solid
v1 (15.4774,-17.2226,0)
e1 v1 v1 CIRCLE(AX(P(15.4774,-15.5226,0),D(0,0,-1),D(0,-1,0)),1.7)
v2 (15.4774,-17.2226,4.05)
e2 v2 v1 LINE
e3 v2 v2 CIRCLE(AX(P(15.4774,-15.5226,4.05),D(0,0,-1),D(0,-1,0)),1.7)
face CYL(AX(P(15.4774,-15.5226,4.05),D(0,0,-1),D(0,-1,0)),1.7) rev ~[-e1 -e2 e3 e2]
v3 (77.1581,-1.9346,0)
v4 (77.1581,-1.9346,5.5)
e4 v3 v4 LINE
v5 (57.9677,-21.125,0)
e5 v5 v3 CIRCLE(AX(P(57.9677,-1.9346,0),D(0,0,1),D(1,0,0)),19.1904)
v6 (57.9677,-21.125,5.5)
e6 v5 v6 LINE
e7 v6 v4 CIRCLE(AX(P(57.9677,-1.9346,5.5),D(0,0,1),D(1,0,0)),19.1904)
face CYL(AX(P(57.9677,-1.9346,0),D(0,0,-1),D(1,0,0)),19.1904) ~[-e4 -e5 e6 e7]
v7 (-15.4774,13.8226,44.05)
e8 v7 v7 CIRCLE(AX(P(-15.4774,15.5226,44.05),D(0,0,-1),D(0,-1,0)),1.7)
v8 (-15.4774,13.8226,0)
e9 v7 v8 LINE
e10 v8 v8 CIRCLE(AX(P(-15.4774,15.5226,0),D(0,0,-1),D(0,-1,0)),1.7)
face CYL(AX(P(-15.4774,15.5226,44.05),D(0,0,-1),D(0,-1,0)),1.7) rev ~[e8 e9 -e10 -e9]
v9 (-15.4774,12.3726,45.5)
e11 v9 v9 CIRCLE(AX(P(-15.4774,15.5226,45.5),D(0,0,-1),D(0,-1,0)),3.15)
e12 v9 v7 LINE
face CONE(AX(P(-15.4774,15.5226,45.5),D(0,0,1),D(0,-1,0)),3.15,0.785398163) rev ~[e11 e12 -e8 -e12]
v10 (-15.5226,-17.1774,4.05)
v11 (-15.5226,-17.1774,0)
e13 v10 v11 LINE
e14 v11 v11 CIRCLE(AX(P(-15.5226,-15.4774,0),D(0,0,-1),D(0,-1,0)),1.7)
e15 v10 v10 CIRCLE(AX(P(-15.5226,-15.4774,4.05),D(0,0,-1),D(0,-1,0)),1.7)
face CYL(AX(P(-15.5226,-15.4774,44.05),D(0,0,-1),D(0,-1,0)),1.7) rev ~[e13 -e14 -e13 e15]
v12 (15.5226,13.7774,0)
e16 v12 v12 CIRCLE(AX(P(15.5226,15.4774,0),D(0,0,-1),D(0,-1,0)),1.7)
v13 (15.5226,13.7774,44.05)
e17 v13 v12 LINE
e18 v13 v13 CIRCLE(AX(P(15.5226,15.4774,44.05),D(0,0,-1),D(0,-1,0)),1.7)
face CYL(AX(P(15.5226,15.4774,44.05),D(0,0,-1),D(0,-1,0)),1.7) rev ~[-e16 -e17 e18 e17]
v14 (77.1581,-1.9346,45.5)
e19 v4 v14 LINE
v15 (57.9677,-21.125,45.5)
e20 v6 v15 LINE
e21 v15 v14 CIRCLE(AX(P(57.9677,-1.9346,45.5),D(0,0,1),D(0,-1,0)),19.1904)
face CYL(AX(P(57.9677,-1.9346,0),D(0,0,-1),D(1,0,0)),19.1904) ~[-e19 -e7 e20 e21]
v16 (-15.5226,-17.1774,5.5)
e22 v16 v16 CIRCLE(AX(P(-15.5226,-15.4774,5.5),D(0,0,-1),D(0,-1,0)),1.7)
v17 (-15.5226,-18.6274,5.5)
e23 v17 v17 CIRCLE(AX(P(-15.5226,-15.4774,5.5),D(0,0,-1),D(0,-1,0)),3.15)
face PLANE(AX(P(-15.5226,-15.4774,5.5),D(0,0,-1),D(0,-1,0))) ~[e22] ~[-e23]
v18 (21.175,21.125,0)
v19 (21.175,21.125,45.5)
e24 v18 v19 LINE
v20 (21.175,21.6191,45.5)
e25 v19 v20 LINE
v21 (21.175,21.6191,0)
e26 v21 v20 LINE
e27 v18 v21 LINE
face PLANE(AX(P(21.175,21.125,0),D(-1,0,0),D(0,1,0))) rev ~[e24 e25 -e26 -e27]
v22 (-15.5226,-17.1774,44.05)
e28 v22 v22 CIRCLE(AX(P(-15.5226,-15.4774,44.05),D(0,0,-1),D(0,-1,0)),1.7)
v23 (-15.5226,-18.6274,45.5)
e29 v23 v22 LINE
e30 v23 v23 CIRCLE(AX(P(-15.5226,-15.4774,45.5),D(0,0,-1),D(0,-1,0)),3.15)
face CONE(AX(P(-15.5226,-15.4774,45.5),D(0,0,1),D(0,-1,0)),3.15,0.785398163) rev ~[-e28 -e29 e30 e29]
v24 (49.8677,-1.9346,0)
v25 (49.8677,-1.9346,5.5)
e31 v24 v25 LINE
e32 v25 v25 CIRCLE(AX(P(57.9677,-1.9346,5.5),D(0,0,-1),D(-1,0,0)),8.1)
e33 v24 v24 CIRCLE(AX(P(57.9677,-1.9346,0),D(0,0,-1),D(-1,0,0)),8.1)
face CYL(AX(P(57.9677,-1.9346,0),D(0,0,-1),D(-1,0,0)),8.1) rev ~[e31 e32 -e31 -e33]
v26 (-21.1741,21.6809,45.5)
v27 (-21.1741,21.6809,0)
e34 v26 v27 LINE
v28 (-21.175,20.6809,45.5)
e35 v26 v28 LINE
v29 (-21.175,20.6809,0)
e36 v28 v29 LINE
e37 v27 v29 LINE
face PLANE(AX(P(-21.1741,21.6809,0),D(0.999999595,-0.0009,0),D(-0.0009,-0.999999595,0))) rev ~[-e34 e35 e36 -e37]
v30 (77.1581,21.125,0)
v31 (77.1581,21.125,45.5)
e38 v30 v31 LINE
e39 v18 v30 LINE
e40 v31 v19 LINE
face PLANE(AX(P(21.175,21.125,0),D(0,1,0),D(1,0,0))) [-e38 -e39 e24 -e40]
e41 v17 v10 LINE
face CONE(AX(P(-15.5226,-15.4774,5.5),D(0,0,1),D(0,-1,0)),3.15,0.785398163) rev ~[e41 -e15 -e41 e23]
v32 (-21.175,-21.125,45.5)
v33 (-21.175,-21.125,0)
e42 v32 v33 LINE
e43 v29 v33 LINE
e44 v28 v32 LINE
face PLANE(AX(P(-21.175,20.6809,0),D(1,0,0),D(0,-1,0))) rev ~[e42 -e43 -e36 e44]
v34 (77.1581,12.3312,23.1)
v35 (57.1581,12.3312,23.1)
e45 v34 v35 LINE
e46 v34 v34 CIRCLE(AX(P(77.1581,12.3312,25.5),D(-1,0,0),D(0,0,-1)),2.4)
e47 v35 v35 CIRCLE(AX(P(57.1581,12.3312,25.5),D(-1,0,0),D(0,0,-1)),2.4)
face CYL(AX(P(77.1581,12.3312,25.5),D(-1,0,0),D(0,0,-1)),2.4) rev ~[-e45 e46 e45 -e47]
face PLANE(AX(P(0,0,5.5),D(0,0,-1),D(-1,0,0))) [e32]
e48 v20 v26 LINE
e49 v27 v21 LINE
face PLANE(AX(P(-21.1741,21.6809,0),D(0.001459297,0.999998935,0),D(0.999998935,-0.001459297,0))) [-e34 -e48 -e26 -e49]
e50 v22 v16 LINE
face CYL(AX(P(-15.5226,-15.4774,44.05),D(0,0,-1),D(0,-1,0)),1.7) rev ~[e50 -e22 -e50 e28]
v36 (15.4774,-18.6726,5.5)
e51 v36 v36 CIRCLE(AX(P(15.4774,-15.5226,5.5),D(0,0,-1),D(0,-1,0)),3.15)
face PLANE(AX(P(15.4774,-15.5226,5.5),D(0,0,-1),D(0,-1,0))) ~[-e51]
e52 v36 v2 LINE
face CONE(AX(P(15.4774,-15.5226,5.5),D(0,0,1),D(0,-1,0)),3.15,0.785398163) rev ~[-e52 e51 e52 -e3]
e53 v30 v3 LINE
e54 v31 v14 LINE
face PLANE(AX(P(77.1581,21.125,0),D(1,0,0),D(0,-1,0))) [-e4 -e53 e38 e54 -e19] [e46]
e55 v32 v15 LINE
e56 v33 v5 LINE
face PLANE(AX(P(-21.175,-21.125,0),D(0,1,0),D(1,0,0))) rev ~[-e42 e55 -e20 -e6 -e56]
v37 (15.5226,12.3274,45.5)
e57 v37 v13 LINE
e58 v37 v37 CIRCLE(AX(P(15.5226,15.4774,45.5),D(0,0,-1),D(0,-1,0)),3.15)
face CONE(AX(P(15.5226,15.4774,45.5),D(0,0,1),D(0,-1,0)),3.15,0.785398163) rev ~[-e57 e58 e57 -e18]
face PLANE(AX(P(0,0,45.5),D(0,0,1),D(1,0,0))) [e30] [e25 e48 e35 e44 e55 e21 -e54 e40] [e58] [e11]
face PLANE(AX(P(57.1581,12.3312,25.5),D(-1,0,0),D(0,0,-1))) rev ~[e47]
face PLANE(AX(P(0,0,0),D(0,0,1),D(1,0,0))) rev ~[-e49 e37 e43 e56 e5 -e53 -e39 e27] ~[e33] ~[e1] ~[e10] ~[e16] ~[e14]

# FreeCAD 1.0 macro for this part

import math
import FreeCAD as App
import Part
import Sketcher
Q = App.Units.Quantity

doc = App.newDocument("Part")
body = doc.addObject("PartDesign::Body", "Body")

sketch1 = body.newObject("Sketcher::SketchObject", "Sketch")
sketch1.AttachmentSupport = (doc.getObject("XY_Plane"), [""])
sketch1.MapMode = "FlatFace"
sketch1.addGeometry([
    Part.LineSegment(App.Vector(-21.18, -21.12, 0), App.Vector(57.97, -21.12, 0)),
    Part.ArcOfCircle(Part.Circle(App.Vector(57.97, -1.93, 0), App.Vector(0, 0, 1), 19.19), math.radians(-90), math.radians(0)),
    Part.LineSegment(App.Vector(77.16, -1.93, 0), App.Vector(77.16, 21.12, 0)),
    Part.LineSegment(App.Vector(77.16, 21.12, 0), App.Vector(21.18, 21.12, 0)),
    Part.LineSegment(App.Vector(21.18, 21.12, 0), App.Vector(21.18, 21.62, 0)),
    Part.LineSegment(App.Vector(21.18, 21.62, 0), App.Vector(-21.17, 21.68, 0)),
    Part.LineSegment(App.Vector(-21.17, 21.68, 0), App.Vector(-21.18, 20.68, 0)),
    Part.LineSegment(App.Vector(-21.18, 20.68, 0), App.Vector(-21.18, -21.12, 0)),
    Part.Circle(App.Vector(-15.52, -15.48, 0), App.Vector(0, 0, 1), 1.36),
    Part.Circle(App.Vector(-15.48, 15.52, 0), App.Vector(0, 0, 1), 1.36),
    Part.Circle(App.Vector(15.52, 15.48, 0), App.Vector(0, 0, 1), 1.36),
    Part.Circle(App.Vector(57.97, -1.93, 0), App.Vector(0, 0, 1), 4.2),
], False)
sketch1.addConstraint([
    Sketcher.Constraint("Tangent", 0, 2, 1, 1),
    Sketcher.Constraint("Tangent", 1, 2, 2, 1),
    Sketcher.Constraint("Coincident", 2, 2, 3, 1),
    Sketcher.Constraint("Coincident", 3, 2, 4, 1),
    Sketcher.Constraint("Coincident", 4, 2, 5, 1),
    Sketcher.Constraint("Coincident", 5, 2, 6, 1),
    Sketcher.Constraint("Coincident", 6, 2, 7, 1),
    Sketcher.Constraint("Coincident", 7, 2, 0, 1),
    Sketcher.Constraint("Horizontal", 0),
    Sketcher.Constraint("Vertical", 2),
    Sketcher.Constraint("Horizontal", 3),
    Sketcher.Constraint("Vertical", 4),
    Sketcher.Constraint("Vertical", 7),
    Sketcher.Constraint("Coincident", 11, 3, 1, 3),
    Sketcher.Constraint("Equal", 8, 9),
    Sketcher.Constraint("Equal", 9, 10),
    Sketcher.Constraint("Symmetric", 8, 3, 10, 3, -1, 1),
    Sketcher.Constraint("Symmetric", 3, 2, 7, 2, -1, 1),
    Sketcher.Constraint("Diameter", 11, Q("8.4 mm")),
    Sketcher.Constraint("Distance", 6, Q("1 mm")),
    Sketcher.Constraint("Diameter", 8, Q("2.729 mm")),
    Sketcher.Constraint("DistanceY", 8, 3, 9, 3, Q("31 mm")),
    Sketcher.Constraint("DistanceX", 9, 3, 10, 3, Q("31 mm")),
    Sketcher.Constraint("Radius", 1, Q("19.1904 mm")),
    Sketcher.Constraint("DistanceX", 3, 2, 3, 1, Q("55.983 mm")),
    Sketcher.Constraint("DistanceY", 4, 1, 4, 2, Q("0.494 mm")),
    Sketcher.Constraint("DistanceY", 7, 2, 7, 1, Q("41.806 mm")),
    Sketcher.Constraint("DistanceY", 0, 2, 2, 2, Q("42.25 mm")),
    Sketcher.Constraint("DistanceX", 6, 2, 3, 2, Q("42.35 mm")),
    Sketcher.Constraint("DistanceX", 5, 2, -1, 1, Q("21.174 mm")),
    Sketcher.Constraint("DistanceX", 9, 3, 1, 3, Q("73.445 mm")),
    Sketcher.Constraint("DistanceY", 1, 3, 10, 3, Q("17.412 mm")),
])
pad1 = body.newObject("PartDesign::Pad", "Pad")
pad1.Profile = sketch1
pad1.Length = 5.5

sketch2 = body.newObject("Sketcher::SketchObject", "Sketch001")
sketch2.AttachmentSupport = (doc.getObject("XY_Plane"), [""])
sketch2.MapMode = "FlatFace"
sketch2.AttachmentOffset = App.Placement(App.Vector(0, 0, 5.5), App.Rotation())
sketch2.addGeometry([
    Part.ArcOfCircle(Part.Circle(App.Vector(57.97, -1.93, 0), App.Vector(0, 0, 1), 19.19), math.radians(-90), math.radians(0)),
    Part.LineSegment(App.Vector(77.16, -1.93, 0), App.Vector(77.16, 21.12, 0)),
    Part.LineSegment(App.Vector(77.16, 21.12, 0), App.Vector(21.18, 21.12, 0)),
    Part.LineSegment(App.Vector(21.18, 21.12, 0), App.Vector(21.18, 21.62, 0)),
    Part.LineSegment(App.Vector(21.18, 21.62, 0), App.Vector(-21.17, 21.68, 0)),
    Part.LineSegment(App.Vector(-21.17, 21.68, 0), App.Vector(-21.18, 20.68, 0)),
    Part.LineSegment(App.Vector(-21.18, 20.68, 0), App.Vector(-21.18, -21.12, 0)),
    Part.LineSegment(App.Vector(-21.18, -21.12, 0), App.Vector(57.97, -21.12, 0)),
    Part.Circle(App.Vector(-15.48, 15.52, 0), App.Vector(0, 0, 1), 1.36),
    Part.Circle(App.Vector(15.52, 15.48, 0), App.Vector(0, 0, 1), 1.36),
], False)
sketch2.addConstraint([
    Sketcher.Constraint("Tangent", 0, 2, 1, 1),
    Sketcher.Constraint("Coincident", 1, 2, 2, 1),
    Sketcher.Constraint("Coincident", 2, 2, 3, 1),
    Sketcher.Constraint("Coincident", 3, 2, 4, 1),
    Sketcher.Constraint("Coincident", 4, 2, 5, 1),
    Sketcher.Constraint("Coincident", 5, 2, 6, 1),
    Sketcher.Constraint("Coincident", 6, 2, 7, 1),
    Sketcher.Constraint("Tangent", 7, 2, 0, 1),
    Sketcher.Constraint("Vertical", 1),
    Sketcher.Constraint("Horizontal", 2),
    Sketcher.Constraint("Vertical", 3),
    Sketcher.Constraint("Vertical", 6),
    Sketcher.Constraint("Horizontal", 7),
    Sketcher.Constraint("Equal", 8, 9),
    Sketcher.Constraint("Symmetric", 2, 2, 6, 2, -1, 1),
    Sketcher.Constraint("Distance", 5, Q("1 mm")),
    Sketcher.Constraint("Diameter", 8, Q("2.729 mm")),
    Sketcher.Constraint("DistanceX", 8, 3, 9, 3, Q("31 mm")),
    Sketcher.Constraint("Radius", 0, Q("19.1904 mm")),
    Sketcher.Constraint("DistanceX", 2, 2, 2, 1, Q("55.983 mm")),
    Sketcher.Constraint("DistanceY", 3, 1, 3, 2, Q("0.494 mm")),
    Sketcher.Constraint("DistanceY", 6, 2, 6, 1, Q("41.806 mm")),
    Sketcher.Constraint("DistanceX", 5, 2, 2, 2, Q("42.35 mm")),
    Sketcher.Constraint("DistanceY", 6, 2, 2, 2, Q("42.25 mm")),
    Sketcher.Constraint("DistanceX", 4, 2, -1, 1, Q("21.174 mm")),
    Sketcher.Constraint("DistanceX", 8, 3, 0, 3, Q("73.445 mm")),
    Sketcher.Constraint("DistanceY", 0, 3, 9, 3, Q("17.412 mm")),
    Sketcher.Constraint("DistanceY", -1, 1, 8, 3, Q("15.5226 mm")),
])
pad2 = body.newObject("PartDesign::Pad", "Pad001")
pad2.Profile = sketch2
pad2.Length = 40

sketch3 = body.newObject("Sketcher::SketchObject", "Sketch002")
sketch3.AttachmentSupport = (doc.getObject("XY_Plane"), [""])
sketch3.MapMode = "FlatFace"
sketch3.AttachmentOffset = App.Placement(App.Vector(0, 0, 45.5), App.Rotation())
sketch3.addGeometry([
    Part.Circle(App.Vector(15.5, 15.5, 0), App.Vector(0, 0, 1), 1.7),
    Part.Circle(App.Vector(-15.5, 15.5, 0), App.Vector(0, 0, 1), 1.7),
    Part.Circle(App.Vector(-15.5, -15.5, 0), App.Vector(0, 0, 1), 1.7),
], False)
sketch3.addConstraint([
    Sketcher.Constraint("Equal", 0, 1),
    Sketcher.Constraint("Equal", 1, 2),
    Sketcher.Constraint("Symmetric", 0, 3, 2, 3, -1, 1),
    Sketcher.Constraint("Diameter", 0, Q("3.4 mm")),
    Sketcher.Constraint("DistanceX", 1, 3, 0, 3, Q("31 mm")),
    Sketcher.Constraint("DistanceY", 2, 3, 1, 3, Q("31 mm")),
    Sketcher.Constraint("DistanceX", -1, 1, 0, 3, Q("15.5226 mm")),
    Sketcher.Constraint("DistanceY", -1, 1, 0, 3, Q("15.4774 mm")),
])
doc.recompute()
hole = body.newObject("PartDesign::Hole", "Hole")
hole.Profile = sketch3
hole.ThreadType = "None"
hole.Diameter = 3.4
hole.DepthType = "ThroughAll"
hole.HoleCutType = "Countersink"
hole.HoleCutDiameter = 6.3
hole.HoleCutCountersinkAngle = 90

sketch4 = body.newObject("Sketcher::SketchObject", "Sketch003")
sketch4.AttachmentSupport = (doc.getObject("XY_Plane"), [""])
sketch4.MapMode = "FlatFace"
sketch4.addGeometry(Part.Circle(App.Vector(58, -2, 0), App.Vector(0, 0, 1), 8), False)
sketch4.addConstraint([
    Sketcher.Constraint("Diameter", 0, Q("16.2 mm")),
    Sketcher.Constraint("DistanceX", -1, 1, 0, 3, Q("57.9677 mm")),
    Sketcher.Constraint("DistanceY", 0, 3, -1, 1, Q("1.9346 mm")),
])
pocket1 = body.newObject("PartDesign::Pocket", "Pocket")
pocket1.Profile = sketch4
pocket1.Length = 5.5
pocket1.Reversed = True

sketch5 = body.newObject("Sketcher::SketchObject", "Sketch004")
sketch5.AttachmentSupport = (doc.getObject("XY_Plane"), [""])
sketch5.MapMode = "FlatFace"
sketch5.AttachmentOffset = App.Placement(App.Vector(0, 0, 5.5), App.Rotation())
sketch5.addGeometry([
    Part.Circle(App.Vector(15.5, -15.5, 0), App.Vector(0, 0, 1), 1.7),
    Part.Circle(App.Vector(-15.5, -15.5, 0), App.Vector(0, 0, 1), 1.7),
], False)
sketch5.addConstraint([
    Sketcher.Constraint("Equal", 0, 1),
    Sketcher.Constraint("Diameter", 0, Q("3.4 mm")),
    Sketcher.Constraint("DistanceX", 1, 3, 0, 3, Q("31 mm")),
    Sketcher.Constraint("DistanceX", -1, 1, 0, 3, Q("15.4774 mm")),
    Sketcher.Constraint("DistanceY", 0, 3, -1, 1, Q("15.5226 mm")),
    Sketcher.Constraint("DistanceY", 1, 3, -1, 1, Q("15.4774 mm")),
])
doc.recompute()
hole2 = body.newObject("PartDesign::Hole", "Hole001")
hole2.Profile = sketch5
hole2.ThreadType = "None"
hole2.Diameter = 3.4
hole2.DepthType = "ThroughAll"
hole2.HoleCutType = "Countersink"
hole2.HoleCutDiameter = 6.3
hole2.HoleCutCountersinkAngle = 90

sketch6 = body.newObject("Sketcher::SketchObject", "Sketch005")
sketch6.AttachmentSupport = (doc.getObject("YZ_Plane"), [""])
sketch6.MapMode = "FlatFace"
sketch6.AttachmentOffset = App.Placement(App.Vector(0, 0, 77.1581), App.Rotation())
sketch6.addGeometry(Part.Circle(App.Vector(12.3, 25.5, 0), App.Vector(0, 0, 1), 2.4), False)
sketch6.addConstraint([
    Sketcher.Constraint("Diameter", 0, Q("4.8 mm")),
    Sketcher.Constraint("DistanceY", -1, 1, 0, 3, Q("25.5 mm")),
    Sketcher.Constraint("DistanceX", -1, 1, 0, 3, Q("12.3312 mm")),
])
doc.recompute()
hole3 = body.newObject("PartDesign::Hole", "Hole002")
hole3.Profile = sketch6
hole3.ThreadType = "None"
hole3.Diameter = 4.8
hole3.DepthType = "Dimension"
hole3.Depth = 20
hole3.DrillPoint = "Flat"

doc.recompute()
